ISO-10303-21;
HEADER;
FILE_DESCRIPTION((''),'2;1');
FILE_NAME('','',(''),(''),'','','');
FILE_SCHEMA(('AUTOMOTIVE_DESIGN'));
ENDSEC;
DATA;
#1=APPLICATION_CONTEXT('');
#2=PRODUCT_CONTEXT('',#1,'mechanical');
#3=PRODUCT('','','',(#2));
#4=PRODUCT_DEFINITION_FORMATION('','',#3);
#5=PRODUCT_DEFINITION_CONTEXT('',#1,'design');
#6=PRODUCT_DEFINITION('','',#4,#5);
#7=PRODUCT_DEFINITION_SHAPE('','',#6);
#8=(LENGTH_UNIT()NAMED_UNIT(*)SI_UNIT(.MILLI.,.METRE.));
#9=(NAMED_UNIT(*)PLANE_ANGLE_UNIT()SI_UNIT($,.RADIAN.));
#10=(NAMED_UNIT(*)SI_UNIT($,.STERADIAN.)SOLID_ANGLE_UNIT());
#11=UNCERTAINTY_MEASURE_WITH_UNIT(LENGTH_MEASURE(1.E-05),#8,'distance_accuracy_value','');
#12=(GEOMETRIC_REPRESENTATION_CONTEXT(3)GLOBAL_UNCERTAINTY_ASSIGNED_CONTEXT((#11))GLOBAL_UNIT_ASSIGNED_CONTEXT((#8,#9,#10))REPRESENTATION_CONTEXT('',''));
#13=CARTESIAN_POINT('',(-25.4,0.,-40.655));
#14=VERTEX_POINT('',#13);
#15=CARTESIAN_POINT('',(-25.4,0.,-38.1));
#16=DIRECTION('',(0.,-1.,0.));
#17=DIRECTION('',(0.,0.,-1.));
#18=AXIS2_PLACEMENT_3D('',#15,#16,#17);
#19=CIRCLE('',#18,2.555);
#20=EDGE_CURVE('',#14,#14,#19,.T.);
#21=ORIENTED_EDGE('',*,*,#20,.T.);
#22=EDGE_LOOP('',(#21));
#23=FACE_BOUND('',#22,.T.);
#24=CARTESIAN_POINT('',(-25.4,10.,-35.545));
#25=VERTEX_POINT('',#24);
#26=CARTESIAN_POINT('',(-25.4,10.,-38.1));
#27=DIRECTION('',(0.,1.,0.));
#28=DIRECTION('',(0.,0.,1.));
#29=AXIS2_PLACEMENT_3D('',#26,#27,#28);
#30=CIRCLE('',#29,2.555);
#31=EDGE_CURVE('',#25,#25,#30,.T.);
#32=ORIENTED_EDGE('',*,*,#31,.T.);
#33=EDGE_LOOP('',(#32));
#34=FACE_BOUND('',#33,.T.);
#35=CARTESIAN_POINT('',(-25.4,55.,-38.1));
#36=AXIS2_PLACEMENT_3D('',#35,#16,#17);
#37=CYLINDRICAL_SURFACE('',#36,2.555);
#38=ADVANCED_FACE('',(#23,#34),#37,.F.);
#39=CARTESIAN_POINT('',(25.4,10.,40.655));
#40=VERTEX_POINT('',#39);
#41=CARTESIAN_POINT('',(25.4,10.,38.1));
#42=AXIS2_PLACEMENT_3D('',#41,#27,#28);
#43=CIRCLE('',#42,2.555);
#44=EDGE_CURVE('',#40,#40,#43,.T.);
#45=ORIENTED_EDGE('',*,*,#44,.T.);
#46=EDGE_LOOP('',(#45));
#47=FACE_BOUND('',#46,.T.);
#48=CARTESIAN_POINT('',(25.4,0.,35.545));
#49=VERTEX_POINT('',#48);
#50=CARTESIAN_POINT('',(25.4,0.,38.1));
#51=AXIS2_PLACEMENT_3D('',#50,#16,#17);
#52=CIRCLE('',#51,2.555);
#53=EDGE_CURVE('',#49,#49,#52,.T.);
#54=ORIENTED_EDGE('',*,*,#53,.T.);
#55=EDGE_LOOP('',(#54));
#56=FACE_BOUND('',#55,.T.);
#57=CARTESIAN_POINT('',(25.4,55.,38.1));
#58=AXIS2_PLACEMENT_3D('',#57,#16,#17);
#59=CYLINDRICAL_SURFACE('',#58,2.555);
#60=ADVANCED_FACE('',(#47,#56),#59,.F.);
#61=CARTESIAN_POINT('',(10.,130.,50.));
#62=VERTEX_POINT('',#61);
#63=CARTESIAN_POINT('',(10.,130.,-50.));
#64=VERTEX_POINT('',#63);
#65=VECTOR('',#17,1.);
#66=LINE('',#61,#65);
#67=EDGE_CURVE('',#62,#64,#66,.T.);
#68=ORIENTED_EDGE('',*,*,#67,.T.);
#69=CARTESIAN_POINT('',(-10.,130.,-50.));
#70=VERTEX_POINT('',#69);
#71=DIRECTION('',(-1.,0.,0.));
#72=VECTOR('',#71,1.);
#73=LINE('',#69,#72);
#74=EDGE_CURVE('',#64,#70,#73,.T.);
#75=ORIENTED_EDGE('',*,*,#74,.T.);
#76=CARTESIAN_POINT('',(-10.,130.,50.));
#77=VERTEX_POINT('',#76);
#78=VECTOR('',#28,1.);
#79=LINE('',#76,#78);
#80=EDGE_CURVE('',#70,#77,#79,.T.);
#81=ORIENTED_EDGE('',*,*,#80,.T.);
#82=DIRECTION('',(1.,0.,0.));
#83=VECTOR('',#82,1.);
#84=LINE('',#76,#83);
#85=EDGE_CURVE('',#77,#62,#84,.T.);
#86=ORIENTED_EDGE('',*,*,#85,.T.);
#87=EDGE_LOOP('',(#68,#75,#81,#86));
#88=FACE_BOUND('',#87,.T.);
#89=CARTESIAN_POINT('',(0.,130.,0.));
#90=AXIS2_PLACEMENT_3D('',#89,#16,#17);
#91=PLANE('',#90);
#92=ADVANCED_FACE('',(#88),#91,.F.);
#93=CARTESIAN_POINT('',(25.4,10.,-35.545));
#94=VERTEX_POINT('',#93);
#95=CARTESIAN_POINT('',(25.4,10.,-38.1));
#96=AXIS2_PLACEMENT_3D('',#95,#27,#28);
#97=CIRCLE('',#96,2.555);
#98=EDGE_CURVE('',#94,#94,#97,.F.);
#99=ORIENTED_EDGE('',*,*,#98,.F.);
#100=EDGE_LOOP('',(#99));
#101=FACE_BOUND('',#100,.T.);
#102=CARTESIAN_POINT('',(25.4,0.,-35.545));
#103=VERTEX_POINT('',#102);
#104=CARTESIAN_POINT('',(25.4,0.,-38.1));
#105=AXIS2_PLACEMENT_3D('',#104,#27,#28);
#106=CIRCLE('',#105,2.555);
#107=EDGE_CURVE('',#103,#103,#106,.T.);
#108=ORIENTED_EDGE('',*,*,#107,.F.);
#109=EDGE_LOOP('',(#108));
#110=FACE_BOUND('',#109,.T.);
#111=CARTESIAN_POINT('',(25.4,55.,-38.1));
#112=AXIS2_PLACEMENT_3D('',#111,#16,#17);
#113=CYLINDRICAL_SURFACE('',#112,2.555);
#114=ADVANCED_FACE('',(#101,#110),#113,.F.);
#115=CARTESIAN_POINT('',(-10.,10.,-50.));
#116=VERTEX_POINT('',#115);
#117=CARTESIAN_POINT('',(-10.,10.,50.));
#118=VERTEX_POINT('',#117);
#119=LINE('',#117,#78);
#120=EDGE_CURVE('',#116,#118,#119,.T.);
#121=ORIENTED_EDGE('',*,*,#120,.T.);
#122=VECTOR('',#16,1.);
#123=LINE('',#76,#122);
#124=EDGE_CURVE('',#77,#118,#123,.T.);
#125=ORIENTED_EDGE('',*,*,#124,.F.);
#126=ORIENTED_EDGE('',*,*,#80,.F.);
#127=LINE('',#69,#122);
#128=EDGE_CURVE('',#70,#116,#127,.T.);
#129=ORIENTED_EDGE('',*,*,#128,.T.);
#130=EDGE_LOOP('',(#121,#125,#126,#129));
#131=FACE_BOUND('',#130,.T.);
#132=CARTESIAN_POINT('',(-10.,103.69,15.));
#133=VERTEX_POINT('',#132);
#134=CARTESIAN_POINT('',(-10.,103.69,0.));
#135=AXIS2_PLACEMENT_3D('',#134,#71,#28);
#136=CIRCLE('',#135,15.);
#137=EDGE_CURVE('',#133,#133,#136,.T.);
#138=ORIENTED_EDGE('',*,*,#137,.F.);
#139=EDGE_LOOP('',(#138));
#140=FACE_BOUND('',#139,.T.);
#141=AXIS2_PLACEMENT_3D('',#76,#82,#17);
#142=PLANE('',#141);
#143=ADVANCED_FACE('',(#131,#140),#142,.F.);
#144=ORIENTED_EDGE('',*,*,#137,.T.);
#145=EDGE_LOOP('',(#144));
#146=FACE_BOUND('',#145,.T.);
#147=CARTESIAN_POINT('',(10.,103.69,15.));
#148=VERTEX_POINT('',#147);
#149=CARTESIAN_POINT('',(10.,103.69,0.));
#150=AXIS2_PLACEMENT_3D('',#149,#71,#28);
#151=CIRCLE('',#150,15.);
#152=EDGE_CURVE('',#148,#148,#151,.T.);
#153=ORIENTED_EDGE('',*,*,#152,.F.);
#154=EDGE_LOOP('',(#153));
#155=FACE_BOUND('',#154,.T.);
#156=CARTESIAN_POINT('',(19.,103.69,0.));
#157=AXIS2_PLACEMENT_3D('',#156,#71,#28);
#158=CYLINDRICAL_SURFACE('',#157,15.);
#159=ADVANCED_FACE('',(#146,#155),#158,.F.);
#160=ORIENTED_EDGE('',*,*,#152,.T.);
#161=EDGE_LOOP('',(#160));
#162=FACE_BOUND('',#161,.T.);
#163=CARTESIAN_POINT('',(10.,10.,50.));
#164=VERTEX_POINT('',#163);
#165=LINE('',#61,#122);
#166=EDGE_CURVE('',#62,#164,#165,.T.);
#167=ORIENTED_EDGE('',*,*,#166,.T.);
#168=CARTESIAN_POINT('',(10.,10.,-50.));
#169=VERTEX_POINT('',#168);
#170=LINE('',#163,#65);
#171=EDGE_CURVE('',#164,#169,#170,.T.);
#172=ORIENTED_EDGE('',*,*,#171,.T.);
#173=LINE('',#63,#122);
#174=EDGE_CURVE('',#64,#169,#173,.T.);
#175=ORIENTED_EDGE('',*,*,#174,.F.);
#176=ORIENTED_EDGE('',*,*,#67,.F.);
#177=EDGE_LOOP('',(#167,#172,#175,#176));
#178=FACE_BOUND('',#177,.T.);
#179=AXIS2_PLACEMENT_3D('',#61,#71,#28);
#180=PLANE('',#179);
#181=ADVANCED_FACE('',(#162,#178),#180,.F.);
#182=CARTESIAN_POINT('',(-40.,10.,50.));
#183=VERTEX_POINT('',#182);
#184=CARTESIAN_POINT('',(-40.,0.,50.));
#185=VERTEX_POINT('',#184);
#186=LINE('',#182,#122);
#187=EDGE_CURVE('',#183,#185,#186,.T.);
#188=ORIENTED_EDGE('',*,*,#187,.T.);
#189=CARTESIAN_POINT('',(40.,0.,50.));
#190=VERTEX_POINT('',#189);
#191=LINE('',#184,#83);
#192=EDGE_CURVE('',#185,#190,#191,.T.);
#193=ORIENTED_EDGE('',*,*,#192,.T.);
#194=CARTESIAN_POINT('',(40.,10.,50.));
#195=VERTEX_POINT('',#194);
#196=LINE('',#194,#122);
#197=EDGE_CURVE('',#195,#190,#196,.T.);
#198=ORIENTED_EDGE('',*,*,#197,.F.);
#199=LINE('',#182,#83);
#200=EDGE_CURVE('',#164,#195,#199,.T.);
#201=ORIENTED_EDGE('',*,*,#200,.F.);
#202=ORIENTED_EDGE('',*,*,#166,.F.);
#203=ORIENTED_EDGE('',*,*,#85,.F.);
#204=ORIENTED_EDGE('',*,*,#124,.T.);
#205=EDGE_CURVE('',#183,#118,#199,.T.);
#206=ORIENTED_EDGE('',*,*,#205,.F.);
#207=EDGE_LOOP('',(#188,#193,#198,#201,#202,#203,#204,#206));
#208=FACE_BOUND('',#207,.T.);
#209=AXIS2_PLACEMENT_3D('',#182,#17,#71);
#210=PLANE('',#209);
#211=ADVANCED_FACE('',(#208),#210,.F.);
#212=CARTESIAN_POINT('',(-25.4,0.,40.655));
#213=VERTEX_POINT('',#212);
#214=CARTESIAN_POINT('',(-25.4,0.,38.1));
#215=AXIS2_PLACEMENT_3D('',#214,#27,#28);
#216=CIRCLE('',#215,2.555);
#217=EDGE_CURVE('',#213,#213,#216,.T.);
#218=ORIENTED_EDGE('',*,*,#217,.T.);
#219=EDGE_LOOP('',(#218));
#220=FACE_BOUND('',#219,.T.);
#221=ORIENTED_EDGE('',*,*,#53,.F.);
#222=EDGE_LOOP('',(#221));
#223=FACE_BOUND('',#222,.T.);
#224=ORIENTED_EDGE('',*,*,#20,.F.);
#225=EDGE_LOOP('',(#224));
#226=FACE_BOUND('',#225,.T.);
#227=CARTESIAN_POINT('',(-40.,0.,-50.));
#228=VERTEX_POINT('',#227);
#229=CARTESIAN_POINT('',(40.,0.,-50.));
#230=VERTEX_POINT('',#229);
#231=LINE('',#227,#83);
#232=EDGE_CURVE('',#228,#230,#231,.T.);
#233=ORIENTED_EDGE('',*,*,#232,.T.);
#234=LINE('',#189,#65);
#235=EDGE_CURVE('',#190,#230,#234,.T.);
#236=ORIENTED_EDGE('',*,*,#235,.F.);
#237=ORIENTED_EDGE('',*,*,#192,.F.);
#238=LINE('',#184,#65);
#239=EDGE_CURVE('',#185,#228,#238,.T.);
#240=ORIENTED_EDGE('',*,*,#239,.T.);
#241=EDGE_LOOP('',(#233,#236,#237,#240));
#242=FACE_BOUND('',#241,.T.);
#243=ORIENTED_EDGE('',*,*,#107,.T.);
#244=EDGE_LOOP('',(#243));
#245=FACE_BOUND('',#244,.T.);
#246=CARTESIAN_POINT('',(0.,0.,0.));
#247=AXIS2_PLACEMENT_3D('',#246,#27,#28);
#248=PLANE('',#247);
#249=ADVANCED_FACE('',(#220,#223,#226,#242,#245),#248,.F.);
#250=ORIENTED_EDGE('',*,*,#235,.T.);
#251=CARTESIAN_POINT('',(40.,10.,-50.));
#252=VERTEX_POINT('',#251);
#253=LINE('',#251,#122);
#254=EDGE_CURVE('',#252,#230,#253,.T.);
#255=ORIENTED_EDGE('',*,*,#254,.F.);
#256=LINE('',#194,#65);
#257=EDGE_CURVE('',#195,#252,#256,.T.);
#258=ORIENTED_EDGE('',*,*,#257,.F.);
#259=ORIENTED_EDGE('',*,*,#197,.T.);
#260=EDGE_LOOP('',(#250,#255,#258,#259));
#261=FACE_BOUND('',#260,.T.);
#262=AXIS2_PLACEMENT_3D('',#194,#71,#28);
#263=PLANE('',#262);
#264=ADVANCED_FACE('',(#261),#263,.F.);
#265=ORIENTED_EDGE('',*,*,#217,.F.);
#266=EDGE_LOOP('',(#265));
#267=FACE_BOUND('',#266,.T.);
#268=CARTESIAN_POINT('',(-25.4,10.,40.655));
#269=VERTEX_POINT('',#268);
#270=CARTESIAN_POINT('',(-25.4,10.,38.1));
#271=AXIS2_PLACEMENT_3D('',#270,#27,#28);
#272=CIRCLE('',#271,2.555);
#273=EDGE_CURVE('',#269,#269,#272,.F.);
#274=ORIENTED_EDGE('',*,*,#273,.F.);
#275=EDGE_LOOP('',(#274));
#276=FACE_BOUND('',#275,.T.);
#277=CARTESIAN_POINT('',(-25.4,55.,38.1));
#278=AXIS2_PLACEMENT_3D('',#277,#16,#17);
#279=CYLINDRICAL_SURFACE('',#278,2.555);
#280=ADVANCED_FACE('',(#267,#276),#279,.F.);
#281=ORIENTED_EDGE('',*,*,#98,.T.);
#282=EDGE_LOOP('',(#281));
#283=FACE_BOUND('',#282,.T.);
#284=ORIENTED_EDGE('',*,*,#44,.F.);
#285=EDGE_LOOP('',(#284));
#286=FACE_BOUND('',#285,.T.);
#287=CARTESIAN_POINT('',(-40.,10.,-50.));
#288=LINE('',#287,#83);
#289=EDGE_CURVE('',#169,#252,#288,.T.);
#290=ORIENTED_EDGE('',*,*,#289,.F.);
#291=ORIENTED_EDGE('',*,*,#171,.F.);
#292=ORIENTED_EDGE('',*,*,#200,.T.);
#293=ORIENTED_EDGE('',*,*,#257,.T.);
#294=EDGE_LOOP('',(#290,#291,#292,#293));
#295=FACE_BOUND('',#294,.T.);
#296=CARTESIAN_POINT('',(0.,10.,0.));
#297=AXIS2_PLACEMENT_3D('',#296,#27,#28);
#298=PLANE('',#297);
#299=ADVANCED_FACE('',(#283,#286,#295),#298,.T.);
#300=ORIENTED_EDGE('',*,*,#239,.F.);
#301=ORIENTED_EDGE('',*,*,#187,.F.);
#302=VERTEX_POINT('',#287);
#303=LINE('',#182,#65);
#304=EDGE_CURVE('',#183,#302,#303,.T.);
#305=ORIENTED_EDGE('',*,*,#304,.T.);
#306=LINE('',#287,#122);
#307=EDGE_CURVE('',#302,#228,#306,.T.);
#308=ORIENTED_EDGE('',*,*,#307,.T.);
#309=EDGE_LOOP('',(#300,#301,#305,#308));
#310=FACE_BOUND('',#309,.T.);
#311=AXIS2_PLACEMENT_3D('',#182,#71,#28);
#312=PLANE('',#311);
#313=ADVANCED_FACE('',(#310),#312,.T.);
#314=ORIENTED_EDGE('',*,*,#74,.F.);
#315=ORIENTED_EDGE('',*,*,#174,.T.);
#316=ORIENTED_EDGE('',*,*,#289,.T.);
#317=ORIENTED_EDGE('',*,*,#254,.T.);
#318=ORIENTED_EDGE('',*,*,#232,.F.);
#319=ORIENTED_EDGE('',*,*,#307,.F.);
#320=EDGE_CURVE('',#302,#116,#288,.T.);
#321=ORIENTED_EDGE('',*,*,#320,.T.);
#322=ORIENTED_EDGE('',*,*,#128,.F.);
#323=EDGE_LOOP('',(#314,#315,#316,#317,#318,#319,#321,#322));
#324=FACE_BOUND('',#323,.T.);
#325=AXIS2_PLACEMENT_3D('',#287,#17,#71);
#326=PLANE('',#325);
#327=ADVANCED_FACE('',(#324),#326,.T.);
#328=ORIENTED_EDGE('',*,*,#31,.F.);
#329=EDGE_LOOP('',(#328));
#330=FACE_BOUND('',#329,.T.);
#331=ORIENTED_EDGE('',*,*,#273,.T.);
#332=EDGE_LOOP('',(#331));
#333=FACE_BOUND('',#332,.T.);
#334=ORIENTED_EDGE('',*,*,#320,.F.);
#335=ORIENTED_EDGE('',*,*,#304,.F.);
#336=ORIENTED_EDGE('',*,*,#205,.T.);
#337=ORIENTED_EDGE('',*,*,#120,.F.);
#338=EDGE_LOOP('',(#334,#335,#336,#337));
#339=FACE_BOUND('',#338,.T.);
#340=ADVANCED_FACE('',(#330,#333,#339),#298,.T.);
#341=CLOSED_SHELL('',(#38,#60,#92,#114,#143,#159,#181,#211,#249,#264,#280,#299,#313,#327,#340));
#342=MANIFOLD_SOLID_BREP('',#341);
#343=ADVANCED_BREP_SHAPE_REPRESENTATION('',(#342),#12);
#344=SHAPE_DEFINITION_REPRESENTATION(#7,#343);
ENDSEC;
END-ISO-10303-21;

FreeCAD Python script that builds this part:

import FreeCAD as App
import Part
import Sketcher


def add_polygon(sketch, points):
    """Adds a closed chain of lines whose ends are joined by coincident constraints."""
    first, n = sketch.GeometryCount, len(points)
    for a, b in zip(points, points[1:] + points[:1]):
        sketch.addGeometry(Part.LineSegment(App.Vector(*a, 0), App.Vector(*b, 0)), False)
    for i in range(n):
        sketch.addConstraint(Sketcher.Constraint("Coincident", first + i, 2, first + (i + 1) % n, 1))

doc = App.newDocument("Part")
body = doc.addObject("PartDesign::Body", "Body")

# Sketch on XZ plane
sketch1 = body.newObject("Sketcher::SketchObject", "Sketch")
sketch1.AttachmentSupport = (doc.getObject("XZ_Plane"), [""])
sketch1.MapMode = "FlatFace"
add_polygon(sketch1, [(-40, -50), (-40, 50), (40, 50), (40, -50)])  # lines 0-3
sketch1.addConstraint(Sketcher.Constraint("Vertical", 0))
sketch1.addConstraint(Sketcher.Constraint("Horizontal", 1))
sketch1.addConstraint(Sketcher.Constraint("Vertical", 2))
sketch1.addConstraint(Sketcher.Constraint("Horizontal", 3))
sketch1.addConstraint(Sketcher.Constraint("Symmetric", 0, 2, 2, 2, -1, 1))
sketch1.addConstraint(Sketcher.Constraint("DistanceX", 1, 1, 1, 2, 80.0))
sketch1.addConstraint(Sketcher.Constraint("DistanceY", 0, 1, 0, 2, 100.0))
pad1 = body.newObject("PartDesign::Pad", "Pad")
pad1.Profile = sketch1
pad1.Length = 10
pad1.Reversed = True

# Sketch on XZ plane
sketch2 = body.newObject("Sketcher::SketchObject", "Sketch001")
sketch2.AttachmentSupport = (doc.getObject("XZ_Plane"), [""])
sketch2.MapMode = "FlatFace"
sketch2.AttachmentOffset = App.Placement(App.Vector(0, 0, -10), App.Rotation())
add_polygon(sketch2, [(-10, -50), (-10, 50), (10, 50), (10, -50)])  # lines 0-3
sketch2.addConstraint(Sketcher.Constraint("Vertical", 0))
sketch2.addConstraint(Sketcher.Constraint("Horizontal", 1))
sketch2.addConstraint(Sketcher.Constraint("Vertical", 2))
sketch2.addConstraint(Sketcher.Constraint("Horizontal", 3))
sketch2.addConstraint(Sketcher.Constraint("Symmetric", 0, 2, 2, 2, -1, 1))
sketch2.addConstraint(Sketcher.Constraint("DistanceX", 1, 1, 1, 2, 20.0))
sketch2.addConstraint(Sketcher.Constraint("DistanceY", 0, 1, 0, 2, 100.0))
pad2 = body.newObject("PartDesign::Pad", "Pad001")
pad2.Profile = sketch2
pad2.Length = 120
pad2.Reversed = True

# Sketch on XZ plane
sketch3 = body.newObject("Sketcher::SketchObject", "Sketch002")
sketch3.AttachmentSupport = (doc.getObject("XZ_Plane"), [""])
sketch3.MapMode = "FlatFace"
sketch3.addGeometry(Part.Circle(App.Vector(-25.4, -38.1, 0), App.Vector(0, 0, 1), 2.6), False)
sketch3.addGeometry(Part.Circle(App.Vector(25.4, -38.1, 0), App.Vector(0, 0, 1), 2.6), False)
sketch3.addGeometry(Part.Circle(App.Vector(-25.4, 38.1, 0), App.Vector(0, 0, 1), 2.6), False)
sketch3.addGeometry(Part.Circle(App.Vector(25.4, 38.1, 0), App.Vector(0, 0, 1), 2.6), False)
sketch3.addConstraint(Sketcher.Constraint("Equal", 0, 1))
sketch3.addConstraint(Sketcher.Constraint("Equal", 1, 2))
sketch3.addConstraint(Sketcher.Constraint("Equal", 2, 3))
sketch3.addConstraint(Sketcher.Constraint("Symmetric", 1, 3, 2, 3, -1, 1))
sketch3.addConstraint(Sketcher.Constraint("Symmetric", 0, 3, 3, 3, -1, 1))
sketch3.addConstraint(Sketcher.Constraint("Symmetric", 0, 3, 1, 3, -2))
sketch3.addConstraint(Sketcher.Constraint("Diameter", 0, 5.11))
sketch3.addConstraint(Sketcher.Constraint("DistanceX", 0, 3, -1, 1, 25.4))
sketch3.addConstraint(Sketcher.Constraint("DistanceY", 0, 3, -1, 1, 38.1))
pocket1 = body.newObject("PartDesign::Pocket", "Pocket")
pocket1.Profile = sketch3
pocket1.Length = 55

# Sketch on YZ plane
sketch4 = body.newObject("Sketcher::SketchObject", "Sketch003")
sketch4.AttachmentSupport = (doc.getObject("YZ_Plane"), [""])
sketch4.MapMode = "FlatFace"
sketch4.AttachmentOffset = App.Placement(App.Vector(0, 0, -10), App.Rotation())
sketch4.addGeometry(Part.Circle(App.Vector(104, 0, 0), App.Vector(0, 0, 1), 15), False)
sketch4.addConstraint(Sketcher.Constraint("PointOnObject", 0, 3, -1))
sketch4.addConstraint(Sketcher.Constraint("Diameter", 0, 30.0))
sketch4.addConstraint(Sketcher.Constraint("DistanceX", -1, 1, 0, 3, 103.69))
pocket2 = body.newObject("PartDesign::Pocket", "Pocket001")
pocket2.Profile = sketch4
pocket2.Length = 29
pocket2.Reversed = True

doc.recompute()
